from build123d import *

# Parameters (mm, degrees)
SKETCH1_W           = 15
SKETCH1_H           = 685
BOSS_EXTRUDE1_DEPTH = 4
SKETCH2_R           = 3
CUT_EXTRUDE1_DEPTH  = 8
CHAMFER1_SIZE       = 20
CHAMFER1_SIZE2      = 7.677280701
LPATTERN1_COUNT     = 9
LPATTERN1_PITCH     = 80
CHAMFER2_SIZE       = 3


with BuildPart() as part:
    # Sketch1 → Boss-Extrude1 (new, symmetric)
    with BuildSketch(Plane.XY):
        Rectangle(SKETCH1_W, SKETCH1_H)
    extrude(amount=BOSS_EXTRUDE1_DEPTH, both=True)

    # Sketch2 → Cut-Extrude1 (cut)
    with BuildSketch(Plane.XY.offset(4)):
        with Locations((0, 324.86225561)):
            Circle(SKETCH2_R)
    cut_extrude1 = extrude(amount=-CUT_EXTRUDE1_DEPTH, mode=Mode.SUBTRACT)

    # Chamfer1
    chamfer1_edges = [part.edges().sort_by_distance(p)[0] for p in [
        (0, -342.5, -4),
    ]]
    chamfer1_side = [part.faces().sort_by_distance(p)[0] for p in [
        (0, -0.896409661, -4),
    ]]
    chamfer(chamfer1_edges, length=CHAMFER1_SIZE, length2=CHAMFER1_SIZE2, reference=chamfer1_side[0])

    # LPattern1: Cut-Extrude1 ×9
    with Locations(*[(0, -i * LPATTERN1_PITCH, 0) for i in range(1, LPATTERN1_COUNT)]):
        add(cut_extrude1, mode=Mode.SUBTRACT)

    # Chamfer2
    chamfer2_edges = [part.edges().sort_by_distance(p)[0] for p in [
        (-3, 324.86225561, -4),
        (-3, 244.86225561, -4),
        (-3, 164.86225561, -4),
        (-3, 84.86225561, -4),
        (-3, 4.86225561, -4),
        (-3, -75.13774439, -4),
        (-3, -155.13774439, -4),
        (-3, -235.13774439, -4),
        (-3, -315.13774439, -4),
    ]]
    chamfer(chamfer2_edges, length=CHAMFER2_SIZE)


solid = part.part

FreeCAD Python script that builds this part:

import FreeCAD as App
import Part
import Sketcher

V = App.Vector
Q = App.Units.Quantity


def edges_at(feature, points):
    """Names of the edges that pass closest to the given points."""
    edges = feature.Shape.Edges
    near = lambda p: min(range(len(edges)), key=lambda i: edges[i].distToShape(Part.Vertex(*p))[0])
    return sorted({f"Edge{near(p) + 1}" for p in points})


def add_polygon(sketch, points):
    """Adds a closed chain of lines whose ends are joined by coincident constraints."""
    first, n = sketch.GeometryCount, len(points)
    for a, b in zip(points, points[1:] + points[:1]):
        sketch.addGeometry(Part.LineSegment(App.Vector(*a, 0), App.Vector(*b, 0)), False)
    for i in range(n):
        sketch.addConstraint(Sketcher.Constraint("Coincident", first + i, 2, first + (i + 1) % n, 1))

doc = App.newDocument("Part")
params = doc.addObject("Spreadsheet::Sheet", "Params")
for row, (alias, value) in enumerate([
    ("sketch1_width", "15 mm"),
    ("sketch1_height", "685 mm"),
    ("pad1_length", "8 mm"),
    ("sketch2_diameter", "6 mm"),
    ("pocket1_length", "8 mm"),
    ("chamfer_size", "20 mm"),
    ("chamfer_size2", "7.677281 mm"),
    ("linearpattern_pitch", "80 mm"),
    ("chamfer2_size", "3 mm"),
], start=1):
    params.set(f"A{row}", alias)
    params.set(f"B{row}", "=" + value)
    params.setAlias(f"B{row}", alias)

body = doc.addObject("PartDesign::Body", "Body")

# Sketch on XY plane
sketch1 = body.newObject("Sketcher::SketchObject", "Sketch")
sketch1.AttachmentSupport = (doc.getObject("XY_Plane"), [""])
sketch1.MapMode = "FlatFace"
add_polygon(sketch1, [(-8, 342), (-8, -342), (8, -342), (8, 342)])  # lines 0-3
sketch1.addConstraint([
    Sketcher.Constraint("Vertical", 0),
    Sketcher.Constraint("Horizontal", 1),
    Sketcher.Constraint("Vertical", 2),
    Sketcher.Constraint("Horizontal", 3),
    Sketcher.Constraint("Symmetric", 0, 2, 2, 2, -1, 1),
    Sketcher.Constraint("DistanceX", 1, 1, 1, 2, Q("15 mm")),
    Sketcher.Constraint("DistanceY", 0, 2, 0, 1, Q("685 mm")),
])
sketch1.setExpression("Constraints[9]", "Params.sketch1_width")
sketch1.setExpression("Constraints[10]", "Params.sketch1_height")
pad1 = body.newObject("PartDesign::Pad", "Pad")
pad1.Profile = sketch1
pad1.setExpression("Length", "Params.pad1_length")
pad1.Midplane = True

# Sketch on XY plane
sketch2 = body.newObject("Sketcher::SketchObject", "Sketch001")
sketch2.AttachmentSupport = (doc.getObject("XY_Plane"), [""])
sketch2.MapMode = "FlatFace"
sketch2.AttachmentOffset = App.Placement(V(0, 0, 4), App.Rotation())
sketch2.addGeometry(Part.Circle(V(0, 324.9, 0), V(0, 0, 1), 3), False)
sketch2.addConstraint([
    Sketcher.Constraint("PointOnObject", 0, 3, -2),
    Sketcher.Constraint("Diameter", 0, Q("6 mm")),
    Sketcher.Constraint("DistanceY", -1, 1, 0, 3, Q("324.862256 mm")),
])
sketch2.setExpression("Constraints[1]", "Params.sketch2_diameter")
pocket1 = body.newObject("PartDesign::Pocket", "Pocket")
pocket1.Profile = sketch2
pocket1.setExpression("Length", "Params.pocket1_length")
doc.recompute()

chamfer = body.newObject("PartDesign::Chamfer", "Chamfer")
chamfer.Base = (pocket1, edges_at(pocket1, [(0, -342.5, -4)]))
chamfer.ChamferType = "Two distances"
chamfer.setExpression("Size", "Params.chamfer_size")
chamfer.setExpression("Size2", "Params.chamfer_size2")
chamfer.FlipDirection = True
doc.recompute()

linearpattern = body.newObject("PartDesign::LinearPattern", "LinearPattern")
linearpattern.Originals = [pocket1]
linearpattern.Direction = (doc.getObject("Y_Axis"), [""])
linearpattern.Mode = "offset"
linearpattern.setExpression("Offset", "Params.linearpattern_pitch")
linearpattern.Occurrences = 9
linearpattern.Reversed = True
body.Tip = linearpattern
doc.recompute()

chamfer2 = body.newObject("PartDesign::Chamfer", "Chamfer001")
chamfer2.Base = (linearpattern, edges_at(linearpattern, [
    (-3, 324.862, -4),
    (-3, 244.862, -4),
    (-3, 164.862, -4),
    (-3, 84.862, -4),
    (-3, 4.862, -4),
    (-3, -75.138, -4),
    (-3, -155.138, -4),
    (-3, -235.138, -4),
    (-3, -315.138, -4),
]))
chamfer2.setExpression("Size", "Params.chamfer2_size")

doc.recompute()
